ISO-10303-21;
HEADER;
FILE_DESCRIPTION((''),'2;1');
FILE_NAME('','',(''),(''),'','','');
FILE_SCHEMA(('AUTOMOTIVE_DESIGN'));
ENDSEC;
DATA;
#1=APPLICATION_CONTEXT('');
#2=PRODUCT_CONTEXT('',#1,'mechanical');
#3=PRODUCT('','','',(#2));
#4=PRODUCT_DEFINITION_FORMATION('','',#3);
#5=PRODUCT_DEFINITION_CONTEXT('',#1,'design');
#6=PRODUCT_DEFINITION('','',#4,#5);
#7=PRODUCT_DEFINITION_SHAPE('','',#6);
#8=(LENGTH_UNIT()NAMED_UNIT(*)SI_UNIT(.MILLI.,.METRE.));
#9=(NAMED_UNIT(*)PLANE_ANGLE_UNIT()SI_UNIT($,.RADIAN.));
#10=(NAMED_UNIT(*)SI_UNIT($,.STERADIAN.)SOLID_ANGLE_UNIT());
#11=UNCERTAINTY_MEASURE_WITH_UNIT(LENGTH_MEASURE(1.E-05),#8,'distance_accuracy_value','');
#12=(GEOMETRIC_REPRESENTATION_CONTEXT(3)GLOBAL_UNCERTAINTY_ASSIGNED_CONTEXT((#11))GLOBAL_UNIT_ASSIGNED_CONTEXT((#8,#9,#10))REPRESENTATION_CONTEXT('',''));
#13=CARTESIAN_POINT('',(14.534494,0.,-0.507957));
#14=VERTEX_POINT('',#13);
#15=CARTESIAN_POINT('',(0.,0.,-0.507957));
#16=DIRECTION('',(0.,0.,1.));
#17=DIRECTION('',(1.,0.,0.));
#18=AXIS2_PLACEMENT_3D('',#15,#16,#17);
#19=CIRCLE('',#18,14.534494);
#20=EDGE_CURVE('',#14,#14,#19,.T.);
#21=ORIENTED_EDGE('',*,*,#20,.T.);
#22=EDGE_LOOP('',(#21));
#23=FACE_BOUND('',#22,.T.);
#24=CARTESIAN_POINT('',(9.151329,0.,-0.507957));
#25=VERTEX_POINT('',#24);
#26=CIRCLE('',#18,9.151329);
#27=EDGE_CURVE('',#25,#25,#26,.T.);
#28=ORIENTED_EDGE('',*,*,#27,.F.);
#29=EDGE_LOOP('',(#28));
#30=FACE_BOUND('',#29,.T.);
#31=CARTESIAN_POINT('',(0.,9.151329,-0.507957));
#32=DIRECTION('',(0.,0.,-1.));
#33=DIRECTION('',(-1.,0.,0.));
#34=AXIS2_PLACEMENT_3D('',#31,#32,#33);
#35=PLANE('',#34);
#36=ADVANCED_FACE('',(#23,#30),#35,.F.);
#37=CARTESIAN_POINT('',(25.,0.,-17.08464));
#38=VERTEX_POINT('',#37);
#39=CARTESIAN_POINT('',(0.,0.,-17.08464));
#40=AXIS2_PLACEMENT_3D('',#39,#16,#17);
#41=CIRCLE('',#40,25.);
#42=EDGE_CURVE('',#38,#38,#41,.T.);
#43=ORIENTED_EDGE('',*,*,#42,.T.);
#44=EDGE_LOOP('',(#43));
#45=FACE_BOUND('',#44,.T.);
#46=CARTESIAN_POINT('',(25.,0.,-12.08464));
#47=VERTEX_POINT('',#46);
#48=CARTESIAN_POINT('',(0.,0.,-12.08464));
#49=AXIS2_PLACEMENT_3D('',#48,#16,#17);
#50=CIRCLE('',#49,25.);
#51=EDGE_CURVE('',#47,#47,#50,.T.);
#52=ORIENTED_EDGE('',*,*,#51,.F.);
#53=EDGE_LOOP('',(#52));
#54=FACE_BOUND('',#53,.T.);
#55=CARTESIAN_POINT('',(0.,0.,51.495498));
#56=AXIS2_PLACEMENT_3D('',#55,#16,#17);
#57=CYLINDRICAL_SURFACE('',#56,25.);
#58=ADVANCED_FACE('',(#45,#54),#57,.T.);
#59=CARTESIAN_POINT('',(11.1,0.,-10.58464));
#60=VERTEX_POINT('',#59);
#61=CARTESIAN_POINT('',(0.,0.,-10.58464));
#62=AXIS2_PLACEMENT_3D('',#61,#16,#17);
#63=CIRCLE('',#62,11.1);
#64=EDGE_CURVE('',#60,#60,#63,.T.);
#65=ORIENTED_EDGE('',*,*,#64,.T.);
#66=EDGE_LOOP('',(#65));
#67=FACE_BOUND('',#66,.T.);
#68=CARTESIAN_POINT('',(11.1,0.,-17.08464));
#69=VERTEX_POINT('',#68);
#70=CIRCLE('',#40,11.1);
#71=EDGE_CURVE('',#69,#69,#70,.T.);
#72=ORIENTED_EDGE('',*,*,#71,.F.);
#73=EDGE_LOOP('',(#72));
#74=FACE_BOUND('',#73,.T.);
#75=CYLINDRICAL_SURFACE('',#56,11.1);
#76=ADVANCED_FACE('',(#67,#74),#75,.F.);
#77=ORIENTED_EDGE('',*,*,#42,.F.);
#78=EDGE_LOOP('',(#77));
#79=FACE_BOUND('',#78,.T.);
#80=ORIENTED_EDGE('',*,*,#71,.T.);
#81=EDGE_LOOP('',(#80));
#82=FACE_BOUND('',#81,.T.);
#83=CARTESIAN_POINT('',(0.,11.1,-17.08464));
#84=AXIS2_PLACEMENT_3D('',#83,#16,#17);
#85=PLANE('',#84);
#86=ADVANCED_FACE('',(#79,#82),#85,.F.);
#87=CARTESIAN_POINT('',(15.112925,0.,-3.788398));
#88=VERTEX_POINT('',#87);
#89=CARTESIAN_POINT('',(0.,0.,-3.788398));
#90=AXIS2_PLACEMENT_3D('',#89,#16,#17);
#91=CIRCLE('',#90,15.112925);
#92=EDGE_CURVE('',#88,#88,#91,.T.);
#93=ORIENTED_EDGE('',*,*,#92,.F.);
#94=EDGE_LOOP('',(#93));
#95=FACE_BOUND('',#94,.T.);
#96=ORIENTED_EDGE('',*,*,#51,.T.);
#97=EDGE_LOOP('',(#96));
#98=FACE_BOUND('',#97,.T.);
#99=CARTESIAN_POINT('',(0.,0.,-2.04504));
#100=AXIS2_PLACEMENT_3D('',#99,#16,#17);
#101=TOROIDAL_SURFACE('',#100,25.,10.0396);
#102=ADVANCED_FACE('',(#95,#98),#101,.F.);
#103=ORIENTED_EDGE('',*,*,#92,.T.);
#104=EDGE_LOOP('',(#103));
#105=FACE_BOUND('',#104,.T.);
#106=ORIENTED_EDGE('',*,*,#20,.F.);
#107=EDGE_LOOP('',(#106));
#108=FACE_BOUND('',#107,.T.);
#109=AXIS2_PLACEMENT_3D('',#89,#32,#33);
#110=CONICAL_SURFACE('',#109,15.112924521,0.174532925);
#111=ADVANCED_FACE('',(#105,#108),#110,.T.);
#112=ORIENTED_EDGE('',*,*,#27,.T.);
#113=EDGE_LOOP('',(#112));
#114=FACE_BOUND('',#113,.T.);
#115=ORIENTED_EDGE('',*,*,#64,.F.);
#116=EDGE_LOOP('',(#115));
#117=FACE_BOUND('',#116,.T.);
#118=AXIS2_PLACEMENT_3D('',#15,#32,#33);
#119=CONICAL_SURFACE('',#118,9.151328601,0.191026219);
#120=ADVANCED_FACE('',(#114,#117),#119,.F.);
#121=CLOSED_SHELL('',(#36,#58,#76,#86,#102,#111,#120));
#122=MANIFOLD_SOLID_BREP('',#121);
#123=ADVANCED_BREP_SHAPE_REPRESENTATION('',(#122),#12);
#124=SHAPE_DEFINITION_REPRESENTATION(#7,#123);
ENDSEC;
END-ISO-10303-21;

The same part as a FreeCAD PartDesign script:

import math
import FreeCAD as App
import Part
import Sketcher
from FreeCAD import Vector
Q = App.Units.Quantity

doc = App.newDocument("Part")
body = doc.addObject("PartDesign::Body", "Body")

sketch1 = doc.addObject("Sketcher::SketchObject", "Sketch")
body.addObject(sketch1)
sketch1.AttachmentSupport = (doc.YZ_Plane, [""])
sketch1.MapMode = "FlatFace"
sketch1.addGeometry([
    Part.LineSegment(Vector(15.1, -3.8, 0), Vector(14.5, -0.5, 0)),
    Part.LineSegment(Vector(14.5, -0.5, 0), Vector(9.2, -0.5, 0)),
    Part.LineSegment(Vector(9.2, -0.5, 0), Vector(11.1, -10.6, 0)),
    Part.LineSegment(Vector(11.1, -10.6, 0), Vector(11.1, -17.1, 0)),
    Part.LineSegment(Vector(11.1, -17.1, 0), Vector(25, -17.1, 0)),
    Part.LineSegment(Vector(25, -17.1, 0), Vector(25, -12.1, 0)),
    Part.ArcOfCircle(Part.Circle(Vector(25, -2, 0), Vector(0, 0, 1), 10), math.radians(-170), math.radians(-90)),
], False)
sketch1.addConstraint([
    Sketcher.Constraint("Coincident", 0, 2, 1, 1),
    Sketcher.Constraint("Coincident", 1, 2, 2, 1),
    Sketcher.Constraint("Coincident", 2, 2, 3, 1),
    Sketcher.Constraint("Coincident", 3, 2, 4, 1),
    Sketcher.Constraint("Coincident", 4, 2, 5, 1),
    Sketcher.Constraint("Coincident", 5, 2, 6, 2),
    Sketcher.Constraint("Tangent", 6, 1, 0, 1),
    Sketcher.Constraint("Horizontal", 1),
    Sketcher.Constraint("Vertical", 3),
    Sketcher.Constraint("Horizontal", 4),
    Sketcher.Constraint("Vertical", 5),
    Sketcher.Constraint("Vertical", 6, 3, 4, 2),
    Sketcher.Constraint("DistanceY", 5, 1, 5, 2, 5.0),
    Sketcher.Constraint("Angle", 0, Q("100 deg")),
    Sketcher.Constraint("DistanceX", 4, 1, 4, 2, 13.9),
    Sketcher.Constraint("DistanceY", 3, 2, 3, 1, 6.5),
    Sketcher.Constraint("DistanceX", -1, 1, 6, 3, 25.0),
    Sketcher.Constraint("Radius", 6, 10.0396),
    Sketcher.Constraint("DistanceY", 6, 1, -1, 1, 3.788398),
    Sketcher.Constraint("DistanceX", 1, 2, 1, 1, 5.383166),
    Sketcher.Constraint("DistanceX", -1, 1, 1, 2, 9.151329),
])
revolution = doc.addObject("PartDesign::Revolution", "Revolution")
body.addObject(revolution)
revolution.Profile = sketch1
revolution.ReferenceAxis = (sketch1, ["V_Axis"])
revolution.Angle = 360

doc.recompute()
